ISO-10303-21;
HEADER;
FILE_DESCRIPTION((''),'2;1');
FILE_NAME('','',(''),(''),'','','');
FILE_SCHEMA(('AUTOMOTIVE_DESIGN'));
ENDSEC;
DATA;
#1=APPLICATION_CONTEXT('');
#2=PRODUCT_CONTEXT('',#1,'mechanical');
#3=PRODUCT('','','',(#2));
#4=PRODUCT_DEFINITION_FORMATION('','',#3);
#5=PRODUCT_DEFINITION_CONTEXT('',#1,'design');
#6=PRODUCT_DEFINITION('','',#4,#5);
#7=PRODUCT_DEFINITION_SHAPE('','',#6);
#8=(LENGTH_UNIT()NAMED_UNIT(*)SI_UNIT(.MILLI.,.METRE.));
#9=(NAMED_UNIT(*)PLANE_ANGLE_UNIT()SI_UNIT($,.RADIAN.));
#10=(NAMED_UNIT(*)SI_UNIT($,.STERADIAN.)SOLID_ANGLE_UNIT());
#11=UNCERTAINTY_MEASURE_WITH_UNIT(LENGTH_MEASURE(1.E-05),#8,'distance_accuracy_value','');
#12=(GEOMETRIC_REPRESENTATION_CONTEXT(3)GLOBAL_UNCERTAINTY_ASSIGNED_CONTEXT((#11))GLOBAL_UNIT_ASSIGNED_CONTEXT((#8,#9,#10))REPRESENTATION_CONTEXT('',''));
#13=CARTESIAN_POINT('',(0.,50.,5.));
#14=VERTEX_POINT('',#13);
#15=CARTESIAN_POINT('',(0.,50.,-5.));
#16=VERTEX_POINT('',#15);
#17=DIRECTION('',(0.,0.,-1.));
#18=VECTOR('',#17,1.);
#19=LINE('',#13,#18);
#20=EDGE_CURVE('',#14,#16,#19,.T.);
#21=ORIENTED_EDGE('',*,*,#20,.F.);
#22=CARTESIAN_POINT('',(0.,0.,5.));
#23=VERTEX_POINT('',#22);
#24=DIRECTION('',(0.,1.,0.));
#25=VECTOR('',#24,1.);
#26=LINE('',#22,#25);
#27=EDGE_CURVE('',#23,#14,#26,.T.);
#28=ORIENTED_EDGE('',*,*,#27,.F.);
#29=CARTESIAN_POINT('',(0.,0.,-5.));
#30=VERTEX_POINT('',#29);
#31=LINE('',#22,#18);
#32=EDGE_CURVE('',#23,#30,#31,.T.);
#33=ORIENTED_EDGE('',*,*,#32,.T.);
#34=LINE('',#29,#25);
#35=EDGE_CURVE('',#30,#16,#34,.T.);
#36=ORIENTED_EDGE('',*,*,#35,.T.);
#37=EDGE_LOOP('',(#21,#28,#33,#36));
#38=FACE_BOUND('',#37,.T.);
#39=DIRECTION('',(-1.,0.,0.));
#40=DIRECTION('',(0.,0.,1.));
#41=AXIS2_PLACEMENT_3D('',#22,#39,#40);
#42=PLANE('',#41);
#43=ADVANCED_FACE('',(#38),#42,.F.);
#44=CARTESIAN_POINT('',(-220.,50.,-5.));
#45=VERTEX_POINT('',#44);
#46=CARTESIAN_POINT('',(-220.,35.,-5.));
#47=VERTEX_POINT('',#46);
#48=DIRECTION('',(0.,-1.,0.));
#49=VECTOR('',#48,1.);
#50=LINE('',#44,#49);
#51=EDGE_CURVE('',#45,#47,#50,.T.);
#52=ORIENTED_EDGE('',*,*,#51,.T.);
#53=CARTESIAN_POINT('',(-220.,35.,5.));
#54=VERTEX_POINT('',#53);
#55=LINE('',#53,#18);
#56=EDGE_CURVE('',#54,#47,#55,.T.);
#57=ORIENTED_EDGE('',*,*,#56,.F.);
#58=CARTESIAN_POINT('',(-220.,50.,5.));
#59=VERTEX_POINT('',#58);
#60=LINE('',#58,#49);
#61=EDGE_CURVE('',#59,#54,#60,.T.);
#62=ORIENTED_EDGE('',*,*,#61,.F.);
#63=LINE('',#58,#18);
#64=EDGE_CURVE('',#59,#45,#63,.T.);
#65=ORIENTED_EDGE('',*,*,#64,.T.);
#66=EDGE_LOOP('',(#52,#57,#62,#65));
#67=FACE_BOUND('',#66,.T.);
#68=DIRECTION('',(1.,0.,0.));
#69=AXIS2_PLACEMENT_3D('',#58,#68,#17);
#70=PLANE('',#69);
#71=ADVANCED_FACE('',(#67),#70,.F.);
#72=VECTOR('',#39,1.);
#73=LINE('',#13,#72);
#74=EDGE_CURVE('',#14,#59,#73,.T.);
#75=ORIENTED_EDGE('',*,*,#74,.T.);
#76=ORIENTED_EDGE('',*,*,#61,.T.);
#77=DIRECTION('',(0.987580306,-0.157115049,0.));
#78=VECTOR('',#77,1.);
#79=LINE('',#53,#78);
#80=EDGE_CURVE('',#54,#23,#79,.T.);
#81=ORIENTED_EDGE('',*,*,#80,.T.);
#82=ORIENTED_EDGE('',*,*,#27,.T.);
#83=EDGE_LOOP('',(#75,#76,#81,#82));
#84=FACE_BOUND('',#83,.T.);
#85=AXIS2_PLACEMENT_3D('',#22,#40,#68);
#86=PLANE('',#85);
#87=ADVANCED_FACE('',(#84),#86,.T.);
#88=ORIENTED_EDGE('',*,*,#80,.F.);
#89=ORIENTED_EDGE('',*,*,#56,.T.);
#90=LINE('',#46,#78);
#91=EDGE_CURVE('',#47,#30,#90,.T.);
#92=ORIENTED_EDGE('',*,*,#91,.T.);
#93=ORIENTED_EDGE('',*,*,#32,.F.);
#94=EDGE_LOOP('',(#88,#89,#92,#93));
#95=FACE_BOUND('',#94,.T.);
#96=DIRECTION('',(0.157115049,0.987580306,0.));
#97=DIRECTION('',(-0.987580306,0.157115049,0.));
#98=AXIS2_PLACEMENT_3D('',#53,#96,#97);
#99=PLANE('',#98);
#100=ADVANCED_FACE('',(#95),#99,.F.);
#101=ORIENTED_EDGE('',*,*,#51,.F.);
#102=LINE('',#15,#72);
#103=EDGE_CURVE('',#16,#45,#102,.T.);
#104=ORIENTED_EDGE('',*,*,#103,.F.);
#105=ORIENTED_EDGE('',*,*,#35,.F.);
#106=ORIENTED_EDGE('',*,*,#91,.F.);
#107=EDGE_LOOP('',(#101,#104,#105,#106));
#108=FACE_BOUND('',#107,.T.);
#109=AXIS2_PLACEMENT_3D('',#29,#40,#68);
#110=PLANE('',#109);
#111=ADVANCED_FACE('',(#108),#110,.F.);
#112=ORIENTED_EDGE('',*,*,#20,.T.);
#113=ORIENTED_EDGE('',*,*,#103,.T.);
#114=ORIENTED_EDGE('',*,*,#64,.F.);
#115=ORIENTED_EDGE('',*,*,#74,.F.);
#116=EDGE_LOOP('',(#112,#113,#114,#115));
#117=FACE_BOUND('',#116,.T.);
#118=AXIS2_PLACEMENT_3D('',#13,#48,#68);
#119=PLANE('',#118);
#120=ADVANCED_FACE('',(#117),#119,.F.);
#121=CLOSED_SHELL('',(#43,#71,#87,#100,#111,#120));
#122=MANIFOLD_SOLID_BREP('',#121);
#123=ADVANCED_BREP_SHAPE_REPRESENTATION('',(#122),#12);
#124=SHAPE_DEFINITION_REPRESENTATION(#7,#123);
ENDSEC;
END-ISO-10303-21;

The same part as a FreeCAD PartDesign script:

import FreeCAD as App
import Part
import Sketcher

V = App.Vector


def add_polygon(sketch, points):
    """Adds a closed chain of lines whose ends are joined by coincident constraints."""
    first, n = sketch.GeometryCount, len(points)
    for a, b in zip(points, points[1:] + points[:1]):
        sketch.addGeometry(Part.LineSegment(App.Vector(*a, 0), App.Vector(*b, 0)), False)
    for i in range(n):
        sketch.addConstraint(Sketcher.Constraint("Coincident", first + i, 2, first + (i + 1) % n, 1))

doc = App.newDocument("Part")
body = doc.addObject("PartDesign::Body", "Body")

# Sketch on XY plane
sketch1 = body.newObject("Sketcher::SketchObject", "Sketch")
sketch1.AttachmentSupport = (doc.getObject("XY_Plane"), [""])
sketch1.MapMode = "FlatFace"
add_polygon(sketch1, [(0, 0), (0, 50), (-220, 50), (-220, 35)])  # lines 0-3
sketch1.addConstraint([
    Sketcher.Constraint("Vertical", 0),
    Sketcher.Constraint("Horizontal", 1),
    Sketcher.Constraint("Vertical", 2),
    Sketcher.Constraint("Coincident", 3, 2, -1, 1),
    Sketcher.Constraint("DistanceX", 1, 2, 1, 1, 220.0),
    Sketcher.Constraint("DistanceY", 0, 1, 0, 2, 50.0),
    Sketcher.Constraint("DistanceY", 2, 2, 2, 1, 15.0),
])
pad1 = body.newObject("PartDesign::Pad", "Pad")
pad1.Profile = sketch1
pad1.Length = 10
pad1.Midplane = True

doc.recompute()
